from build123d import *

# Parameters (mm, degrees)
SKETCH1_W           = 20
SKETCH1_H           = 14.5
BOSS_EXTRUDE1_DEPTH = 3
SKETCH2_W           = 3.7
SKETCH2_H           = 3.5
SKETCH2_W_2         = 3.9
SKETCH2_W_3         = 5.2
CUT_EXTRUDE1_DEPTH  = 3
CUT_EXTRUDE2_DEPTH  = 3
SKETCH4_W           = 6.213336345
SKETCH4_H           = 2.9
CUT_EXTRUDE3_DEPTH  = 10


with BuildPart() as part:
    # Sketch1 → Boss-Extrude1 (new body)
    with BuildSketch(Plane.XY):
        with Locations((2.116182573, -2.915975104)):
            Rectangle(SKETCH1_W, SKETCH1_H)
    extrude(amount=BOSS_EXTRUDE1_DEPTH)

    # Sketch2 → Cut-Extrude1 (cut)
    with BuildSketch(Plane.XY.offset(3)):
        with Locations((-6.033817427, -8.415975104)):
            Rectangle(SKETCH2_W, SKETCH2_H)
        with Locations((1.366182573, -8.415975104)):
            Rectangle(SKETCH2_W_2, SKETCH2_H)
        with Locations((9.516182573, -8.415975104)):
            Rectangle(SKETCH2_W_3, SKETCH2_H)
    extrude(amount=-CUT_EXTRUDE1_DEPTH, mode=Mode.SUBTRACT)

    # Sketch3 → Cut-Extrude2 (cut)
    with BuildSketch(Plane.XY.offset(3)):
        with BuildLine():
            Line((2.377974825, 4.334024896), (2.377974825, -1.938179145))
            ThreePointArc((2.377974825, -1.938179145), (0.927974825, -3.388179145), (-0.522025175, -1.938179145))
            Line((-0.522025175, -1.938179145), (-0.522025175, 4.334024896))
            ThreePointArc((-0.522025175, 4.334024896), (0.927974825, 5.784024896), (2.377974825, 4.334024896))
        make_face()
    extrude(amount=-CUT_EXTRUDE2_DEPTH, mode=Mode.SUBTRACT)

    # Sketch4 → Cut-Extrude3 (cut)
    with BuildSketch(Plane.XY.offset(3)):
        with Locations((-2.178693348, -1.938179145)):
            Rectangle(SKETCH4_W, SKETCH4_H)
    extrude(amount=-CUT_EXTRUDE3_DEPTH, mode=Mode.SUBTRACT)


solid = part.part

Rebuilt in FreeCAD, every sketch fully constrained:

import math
import FreeCAD as App
import Part
import Sketcher
Q = App.Units.Quantity


def add_polygon(sketch, points):
    """Adds a closed chain of lines whose ends are joined by coincident constraints."""
    first, n = sketch.GeometryCount, len(points)
    for a, b in zip(points, points[1:] + points[:1]):
        sketch.addGeometry(Part.LineSegment(App.Vector(*a, 0), App.Vector(*b, 0)), False)
    for i in range(n):
        sketch.addConstraint(Sketcher.Constraint("Coincident", first + i, 2, first + (i + 1) % n, 1))

doc = App.newDocument("Part")
body = doc.addObject("PartDesign::Body", "Body")

# Sketch on XY plane
sketch1 = body.newObject("Sketcher::SketchObject", "Sketch")
sketch1.AttachmentSupport = (doc.getObject("XY_Plane"), [""])
sketch1.MapMode = "FlatFace"
add_polygon(sketch1, [(-8, 4), (-8, -10), (12, -10), (12, 4)])  # lines 0-3
sketch1.addConstraint([
    Sketcher.Constraint("Vertical", 0),
    Sketcher.Constraint("Horizontal", 1),
    Sketcher.Constraint("Vertical", 2),
    Sketcher.Constraint("Horizontal", 3),
    Sketcher.Constraint("DistanceX", 1, 1, 1, 2, Q("20 mm")),
    Sketcher.Constraint("DistanceY", 0, 2, 0, 1, Q("14.5 mm")),
    Sketcher.Constraint("DistanceX", 0, 2, -1, 1, Q("7.883817 mm")),
    Sketcher.Constraint("DistanceY", 0, 2, -1, 1, Q("10.165975 mm")),
])
pad1 = body.newObject("PartDesign::Pad", "Pad")
pad1.Profile = sketch1
pad1.Length = 3

# Sketch on XY plane
sketch2 = body.newObject("Sketcher::SketchObject", "Sketch001")
sketch2.AttachmentSupport = (doc.getObject("XY_Plane"), [""])
sketch2.MapMode = "FlatFace"
sketch2.AttachmentOffset = App.Placement(App.Vector(0, 0, 3), App.Rotation())
add_polygon(sketch2, [(-7.9, -6.7), (-7.9, -10.2), (-4.2, -10.2), (-4.2, -6.7)])  # lines 0-3
add_polygon(sketch2, [(-0.6, -6.7), (-0.6, -10.2), (3.3, -10.2), (3.3, -6.7)])  # lines 4-7
add_polygon(sketch2, [(6.9, -6.7), (6.9, -10.2), (12.1, -10.2), (12.1, -6.7)])  # lines 8-11
sketch2.addConstraint([
    Sketcher.Constraint("Vertical", 0),
    Sketcher.Constraint("Horizontal", 1),
    Sketcher.Constraint("Vertical", 2),
    Sketcher.Constraint("Horizontal", 3),
    Sketcher.Constraint("Vertical", 4),
    Sketcher.Constraint("Horizontal", 5),
    Sketcher.Constraint("Vertical", 6),
    Sketcher.Constraint("Horizontal", 7),
    Sketcher.Constraint("Vertical", 8),
    Sketcher.Constraint("Horizontal", 9),
    Sketcher.Constraint("Vertical", 10),
    Sketcher.Constraint("Horizontal", 11),
    Sketcher.Constraint("Horizontal", 1, 2, 4, 2),
    Sketcher.Constraint("Horizontal", 3, 2, 6, 2),
    Sketcher.Constraint("Horizontal", 5, 2, 8, 2),
    Sketcher.Constraint("Horizontal", 7, 2, 10, 2),
    Sketcher.Constraint("DistanceX", 1, 1, 1, 2, Q("3.7 mm")),
    Sketcher.Constraint("DistanceX", 5, 1, 5, 2, Q("3.9 mm")),
    Sketcher.Constraint("DistanceX", 9, 1, 9, 2, Q("5.2 mm")),
    Sketcher.Constraint("DistanceY", 0, 2, 0, 1, Q("3.5 mm")),
    Sketcher.Constraint("DistanceX", 1, 2, 4, 2, Q("3.6 mm")),
    Sketcher.Constraint("DistanceX", 5, 2, 8, 2, Q("3.6 mm")),
    Sketcher.Constraint("DistanceX", 0, 2, -1, 1, Q("7.883817 mm")),
    Sketcher.Constraint("DistanceY", 0, 2, -1, 1, Q("10.165975 mm")),
])
pocket1 = body.newObject("PartDesign::Pocket", "Pocket")
pocket1.Profile = sketch2
pocket1.Length = 3

# Sketch on XY plane
sketch3 = body.newObject("Sketcher::SketchObject", "Sketch002")
sketch3.AttachmentSupport = (doc.getObject("XY_Plane"), [""])
sketch3.MapMode = "FlatFace"
sketch3.AttachmentOffset = App.Placement(App.Vector(0, 0, 3), App.Rotation())
sketch3.addGeometry([
    Part.LineSegment(App.Vector(2.4, -1.9, 0), App.Vector(2.4, 4.3, 0)),
    Part.ArcOfCircle(Part.Circle(App.Vector(0.9, 4.3, 0), App.Vector(0, 0, 1), 1.4), math.radians(0), math.radians(180)),
    Part.LineSegment(App.Vector(-0.5, 4.3, 0), App.Vector(-0.5, -1.9, 0)),
    Part.ArcOfCircle(Part.Circle(App.Vector(0.9, -1.9, 0), App.Vector(0, 0, 1), 1.4), math.radians(180), math.radians(360)),
], False)
sketch3.addConstraint([
    Sketcher.Constraint("Tangent", 0, 2, 1, 1),
    Sketcher.Constraint("Tangent", 1, 2, 2, 1),
    Sketcher.Constraint("Tangent", 2, 2, 3, 1),
    Sketcher.Constraint("Tangent", 3, 2, 0, 1),
    Sketcher.Constraint("Vertical", 0),
    Sketcher.Constraint("Vertical", 2),
    Sketcher.Constraint("Radius", 1, Q("1.45 mm")),
    Sketcher.Constraint("DistanceY", 0, 1, 0, 2, Q("6.272204 mm")),
    Sketcher.Constraint("DistanceY", 3, 3, -1, 1, Q("1.938179 mm")),
    Sketcher.Constraint("DistanceX", -1, 1, 1, 3, Q("0.927975 mm")),
])
pocket2 = body.newObject("PartDesign::Pocket", "Pocket001")
pocket2.Profile = sketch3
pocket2.Length = 3

# Sketch on XY plane
sketch4 = body.newObject("Sketcher::SketchObject", "Sketch003")
sketch4.AttachmentSupport = (doc.getObject("XY_Plane"), [""])
sketch4.MapMode = "FlatFace"
sketch4.AttachmentOffset = App.Placement(App.Vector(0, 0, 3), App.Rotation())
add_polygon(sketch4, [(-5.3, -0.5), (-5.3, -3.4), (0.9, -3.4), (0.9, -0.5)])  # lines 0-3
sketch4.addConstraint([
    Sketcher.Constraint("Vertical", 0),
    Sketcher.Constraint("Horizontal", 1),
    Sketcher.Constraint("Vertical", 2),
    Sketcher.Constraint("Horizontal", 3),
    Sketcher.Constraint("DistanceY", 0, 2, 0, 1, Q("2.9 mm")),
    Sketcher.Constraint("DistanceX", 1, 1, 1, 2, Q("6.213336 mm")),
    Sketcher.Constraint("DistanceX", 0, 2, -1, 1, Q("5.285362 mm")),
    Sketcher.Constraint("DistanceY", 0, 2, -1, 1, Q("3.388179 mm")),
])
pocket3 = body.newObject("PartDesign::Pocket", "Pocket002")
pocket3.Profile = sketch4
pocket3.Length = 10

doc.recompute()
